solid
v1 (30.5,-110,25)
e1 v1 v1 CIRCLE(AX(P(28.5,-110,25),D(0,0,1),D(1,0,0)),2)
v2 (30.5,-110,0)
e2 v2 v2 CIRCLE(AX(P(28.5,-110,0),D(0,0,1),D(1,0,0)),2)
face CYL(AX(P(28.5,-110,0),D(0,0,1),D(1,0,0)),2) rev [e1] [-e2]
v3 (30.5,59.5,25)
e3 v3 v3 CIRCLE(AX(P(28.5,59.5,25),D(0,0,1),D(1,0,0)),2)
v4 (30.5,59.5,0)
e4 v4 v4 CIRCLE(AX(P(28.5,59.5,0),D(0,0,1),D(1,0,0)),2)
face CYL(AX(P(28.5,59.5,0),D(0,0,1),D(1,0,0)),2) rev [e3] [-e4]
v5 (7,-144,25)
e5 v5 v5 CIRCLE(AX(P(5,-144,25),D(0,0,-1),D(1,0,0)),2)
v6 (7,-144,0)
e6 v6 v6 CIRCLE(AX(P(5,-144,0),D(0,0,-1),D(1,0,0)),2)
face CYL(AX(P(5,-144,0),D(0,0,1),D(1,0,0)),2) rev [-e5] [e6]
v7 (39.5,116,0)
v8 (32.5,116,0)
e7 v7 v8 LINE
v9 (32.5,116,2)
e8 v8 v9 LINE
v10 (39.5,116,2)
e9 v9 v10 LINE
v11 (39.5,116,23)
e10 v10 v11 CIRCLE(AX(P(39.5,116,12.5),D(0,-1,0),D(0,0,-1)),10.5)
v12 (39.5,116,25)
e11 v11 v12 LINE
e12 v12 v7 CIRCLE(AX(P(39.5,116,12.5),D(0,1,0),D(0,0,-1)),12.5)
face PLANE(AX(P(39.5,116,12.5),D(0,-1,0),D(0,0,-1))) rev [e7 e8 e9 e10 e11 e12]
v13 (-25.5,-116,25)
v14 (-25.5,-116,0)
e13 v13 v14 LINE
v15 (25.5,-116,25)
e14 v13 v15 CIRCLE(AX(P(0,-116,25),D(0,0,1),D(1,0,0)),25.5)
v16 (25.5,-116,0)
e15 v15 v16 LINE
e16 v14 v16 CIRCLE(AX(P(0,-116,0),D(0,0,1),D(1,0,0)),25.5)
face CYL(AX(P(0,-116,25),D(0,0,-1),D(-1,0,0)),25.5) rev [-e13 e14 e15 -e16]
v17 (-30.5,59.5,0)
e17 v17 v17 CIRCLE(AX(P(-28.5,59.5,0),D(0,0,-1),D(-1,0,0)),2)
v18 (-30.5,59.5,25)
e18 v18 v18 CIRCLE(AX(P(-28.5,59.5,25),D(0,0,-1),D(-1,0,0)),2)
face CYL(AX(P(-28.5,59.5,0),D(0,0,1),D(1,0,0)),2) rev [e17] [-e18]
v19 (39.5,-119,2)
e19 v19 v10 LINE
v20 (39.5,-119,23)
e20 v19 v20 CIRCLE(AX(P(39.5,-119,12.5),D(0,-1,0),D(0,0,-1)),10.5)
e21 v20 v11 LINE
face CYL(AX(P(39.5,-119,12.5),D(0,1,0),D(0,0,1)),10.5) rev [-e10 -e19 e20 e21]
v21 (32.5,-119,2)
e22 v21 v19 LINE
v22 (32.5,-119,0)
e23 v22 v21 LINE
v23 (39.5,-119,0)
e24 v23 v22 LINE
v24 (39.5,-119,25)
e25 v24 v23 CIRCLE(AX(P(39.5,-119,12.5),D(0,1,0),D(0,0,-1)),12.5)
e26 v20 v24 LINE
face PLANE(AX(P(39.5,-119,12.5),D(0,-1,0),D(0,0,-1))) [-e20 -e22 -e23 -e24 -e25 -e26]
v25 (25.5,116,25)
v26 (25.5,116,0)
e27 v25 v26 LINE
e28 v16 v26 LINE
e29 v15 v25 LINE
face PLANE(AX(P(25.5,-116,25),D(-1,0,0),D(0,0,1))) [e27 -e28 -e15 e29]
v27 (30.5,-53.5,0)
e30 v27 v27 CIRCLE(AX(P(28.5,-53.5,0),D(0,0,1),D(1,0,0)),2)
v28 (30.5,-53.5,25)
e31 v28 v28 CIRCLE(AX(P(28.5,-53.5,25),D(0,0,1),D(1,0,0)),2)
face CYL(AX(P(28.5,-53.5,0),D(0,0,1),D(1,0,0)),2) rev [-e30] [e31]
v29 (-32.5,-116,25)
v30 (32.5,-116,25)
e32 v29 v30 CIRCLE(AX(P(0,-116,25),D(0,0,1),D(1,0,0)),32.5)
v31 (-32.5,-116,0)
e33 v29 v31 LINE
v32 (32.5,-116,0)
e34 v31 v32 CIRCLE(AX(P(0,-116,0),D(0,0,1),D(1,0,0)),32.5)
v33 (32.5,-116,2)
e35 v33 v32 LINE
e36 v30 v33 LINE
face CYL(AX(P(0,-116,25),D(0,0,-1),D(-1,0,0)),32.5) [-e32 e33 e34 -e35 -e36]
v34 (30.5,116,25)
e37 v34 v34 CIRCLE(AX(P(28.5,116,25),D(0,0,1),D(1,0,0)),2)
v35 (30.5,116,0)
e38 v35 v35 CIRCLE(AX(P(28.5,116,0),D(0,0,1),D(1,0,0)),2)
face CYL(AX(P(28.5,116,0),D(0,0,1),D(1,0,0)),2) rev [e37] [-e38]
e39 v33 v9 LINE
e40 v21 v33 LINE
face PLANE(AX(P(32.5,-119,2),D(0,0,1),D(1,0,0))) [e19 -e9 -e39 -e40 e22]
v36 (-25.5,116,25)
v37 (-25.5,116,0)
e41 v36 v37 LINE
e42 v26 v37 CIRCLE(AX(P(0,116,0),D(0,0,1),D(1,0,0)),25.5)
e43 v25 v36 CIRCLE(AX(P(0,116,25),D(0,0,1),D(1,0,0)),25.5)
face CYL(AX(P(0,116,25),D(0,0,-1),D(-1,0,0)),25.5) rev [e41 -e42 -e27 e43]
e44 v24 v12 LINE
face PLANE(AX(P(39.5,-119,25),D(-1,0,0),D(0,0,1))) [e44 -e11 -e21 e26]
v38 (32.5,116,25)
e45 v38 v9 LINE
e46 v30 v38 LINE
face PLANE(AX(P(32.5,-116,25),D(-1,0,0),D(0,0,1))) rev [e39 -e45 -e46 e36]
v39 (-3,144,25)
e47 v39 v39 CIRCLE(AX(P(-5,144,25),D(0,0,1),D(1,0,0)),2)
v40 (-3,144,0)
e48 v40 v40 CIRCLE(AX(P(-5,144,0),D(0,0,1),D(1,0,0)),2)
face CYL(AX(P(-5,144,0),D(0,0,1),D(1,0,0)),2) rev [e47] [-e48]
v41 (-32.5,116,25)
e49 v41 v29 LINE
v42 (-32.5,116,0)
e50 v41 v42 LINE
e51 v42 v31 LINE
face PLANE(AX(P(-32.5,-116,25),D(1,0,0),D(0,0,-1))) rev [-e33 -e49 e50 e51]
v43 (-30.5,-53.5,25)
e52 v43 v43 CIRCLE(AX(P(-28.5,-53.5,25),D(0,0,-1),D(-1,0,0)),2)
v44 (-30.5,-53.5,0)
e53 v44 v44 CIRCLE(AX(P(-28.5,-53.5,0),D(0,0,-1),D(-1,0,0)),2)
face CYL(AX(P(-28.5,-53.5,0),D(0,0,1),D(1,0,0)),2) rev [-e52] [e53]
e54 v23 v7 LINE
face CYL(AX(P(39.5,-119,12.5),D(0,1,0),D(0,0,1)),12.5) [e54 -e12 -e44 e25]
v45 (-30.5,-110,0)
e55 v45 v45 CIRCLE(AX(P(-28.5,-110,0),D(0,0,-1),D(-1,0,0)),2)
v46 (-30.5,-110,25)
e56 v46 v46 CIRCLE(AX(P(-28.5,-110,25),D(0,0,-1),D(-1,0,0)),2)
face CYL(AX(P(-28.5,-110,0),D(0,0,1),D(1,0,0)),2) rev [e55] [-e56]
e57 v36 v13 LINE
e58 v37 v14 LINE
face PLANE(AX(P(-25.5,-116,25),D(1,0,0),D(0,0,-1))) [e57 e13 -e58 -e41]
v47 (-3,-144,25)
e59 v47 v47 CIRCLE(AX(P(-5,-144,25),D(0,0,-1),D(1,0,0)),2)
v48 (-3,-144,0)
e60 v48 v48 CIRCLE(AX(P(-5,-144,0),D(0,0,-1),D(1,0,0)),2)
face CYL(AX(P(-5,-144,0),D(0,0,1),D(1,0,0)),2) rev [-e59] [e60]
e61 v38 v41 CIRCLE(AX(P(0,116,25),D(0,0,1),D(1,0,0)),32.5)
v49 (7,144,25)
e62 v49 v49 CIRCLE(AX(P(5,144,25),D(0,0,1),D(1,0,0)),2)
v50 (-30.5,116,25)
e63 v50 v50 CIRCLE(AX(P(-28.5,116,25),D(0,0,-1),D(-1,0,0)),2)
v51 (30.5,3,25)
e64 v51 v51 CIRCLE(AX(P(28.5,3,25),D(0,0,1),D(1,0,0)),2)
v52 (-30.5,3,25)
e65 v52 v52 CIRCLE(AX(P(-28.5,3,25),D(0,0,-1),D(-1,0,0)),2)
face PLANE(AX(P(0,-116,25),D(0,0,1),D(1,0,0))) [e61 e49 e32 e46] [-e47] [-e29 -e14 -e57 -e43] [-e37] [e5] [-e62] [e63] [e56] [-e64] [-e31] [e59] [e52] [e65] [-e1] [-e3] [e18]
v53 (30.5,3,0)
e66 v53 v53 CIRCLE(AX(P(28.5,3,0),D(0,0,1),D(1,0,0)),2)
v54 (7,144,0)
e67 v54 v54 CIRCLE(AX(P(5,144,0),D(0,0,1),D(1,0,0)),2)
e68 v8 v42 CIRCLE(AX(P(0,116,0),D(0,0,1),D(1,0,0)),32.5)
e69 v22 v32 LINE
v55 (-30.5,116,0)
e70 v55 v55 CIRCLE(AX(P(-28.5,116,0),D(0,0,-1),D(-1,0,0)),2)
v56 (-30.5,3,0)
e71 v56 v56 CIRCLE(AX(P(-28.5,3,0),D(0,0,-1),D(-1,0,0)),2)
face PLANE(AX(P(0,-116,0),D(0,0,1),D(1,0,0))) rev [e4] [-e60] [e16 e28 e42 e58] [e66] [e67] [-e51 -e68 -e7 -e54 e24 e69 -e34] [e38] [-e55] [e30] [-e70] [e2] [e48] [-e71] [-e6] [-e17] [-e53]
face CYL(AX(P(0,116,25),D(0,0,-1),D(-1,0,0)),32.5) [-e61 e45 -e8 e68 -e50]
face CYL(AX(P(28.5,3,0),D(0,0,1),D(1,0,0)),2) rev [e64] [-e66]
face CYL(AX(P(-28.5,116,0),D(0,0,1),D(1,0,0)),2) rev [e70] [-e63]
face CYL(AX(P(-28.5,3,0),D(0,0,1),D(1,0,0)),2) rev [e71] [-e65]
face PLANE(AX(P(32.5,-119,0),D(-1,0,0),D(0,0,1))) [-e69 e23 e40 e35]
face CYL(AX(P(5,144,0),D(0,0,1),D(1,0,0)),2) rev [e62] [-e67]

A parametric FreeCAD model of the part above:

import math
import FreeCAD as App
import Part
import Sketcher
Q = App.Units.Quantity

doc = App.newDocument("Part")
params = doc.addObject("Spreadsheet::Sheet", "Params")
for row, (alias, value) in enumerate([
    ("sketch1_radius", "32.5 mm"),
    ("sketch1_radius2", "25.5 mm"),
    ("sketch1_height", "232 mm"),
    ("pad1_length", "25 mm"),
    ("sketch2_diameter", "4 mm"),
    ("sketch3_diameter", "4 mm"),
    ("linearpattern_pitch", "56.5 mm"),
    ("sketch4_diameter", "4 mm"),
    ("sketch5_diameter", "4 mm"),
    ("sketch6_diameter", "4 mm"),
    ("sketch7_diameter", "4 mm"),
    ("sketch8_radius", "10.5 mm"),
    ("sketch8_radius2", "12.5 mm"),
    ("sketch8_width", "7 mm"),
    ("pad2_length", "235 mm"),
], start=1):
    params.set(f"A{row}", alias)
    params.set(f"B{row}", "=" + value)
    params.setAlias(f"B{row}", alias)

body = doc.addObject("PartDesign::Body", "Body")

# Sketch on XY plane
sketch1 = body.newObject("Sketcher::SketchObject", "Sketch")
sketch1.AttachmentSupport = (doc.getObject("XY_Plane"), [""])
sketch1.MapMode = "FlatFace"
sketch1.addGeometry([
    Part.LineSegment(App.Vector(-32, 116, 0), App.Vector(-32, -116, 0)),  # 0
    Part.ArcOfCircle(Part.Circle(App.Vector(0, -116, 0), App.Vector(0, 0, 1), 32), math.radians(180), math.radians(360)),  # 1
    Part.LineSegment(App.Vector(32, -116, 0), App.Vector(32, 116, 0)),  # 2
    Part.ArcOfCircle(Part.Circle(App.Vector(0, 116, 0), App.Vector(0, 0, 1), 32), math.radians(0), math.radians(180)),  # 3
    Part.LineSegment(App.Vector(-26, -116, 0), App.Vector(-26, 116, 0)),  # 4
    Part.ArcOfCircle(Part.Circle(App.Vector(0, 116, 0), App.Vector(0, 0, 1), 26), math.radians(0), math.radians(180)),  # 5
    Part.LineSegment(App.Vector(26, 116, 0), App.Vector(26, -116, 0)),  # 6
    Part.ArcOfCircle(Part.Circle(App.Vector(0, -116, 0), App.Vector(0, 0, 1), 26), math.radians(180), math.radians(360)),  # 7
], False)
sketch1.addConstraint([
    Sketcher.Constraint("Tangent", 0, 2, 1, 1),
    Sketcher.Constraint("Tangent", 1, 2, 2, 1),
    Sketcher.Constraint("Tangent", 2, 2, 3, 1),
    Sketcher.Constraint("Tangent", 3, 2, 0, 1),
    Sketcher.Constraint("Tangent", 4, 2, 5, 2),
    Sketcher.Constraint("Tangent", 5, 1, 6, 1),
    Sketcher.Constraint("Tangent", 6, 2, 7, 2),
    Sketcher.Constraint("Tangent", 7, 1, 4, 1),
    Sketcher.Constraint("Vertical", 0),
    Sketcher.Constraint("Vertical", 2),
    Sketcher.Constraint("Vertical", 4),
    Sketcher.Constraint("Vertical", 6),
    Sketcher.Constraint("Coincident", 5, 3, 3, 3),
    Sketcher.Constraint("Symmetric", 1, 3, 3, 3, -1, 1),
    Sketcher.Constraint("Horizontal", 7, 3, 0, 2),
    Sketcher.Constraint("Radius", 1, Q("32.5 mm")),
    Sketcher.Constraint("Radius", 5, Q("25.5 mm")),
    Sketcher.Constraint("DistanceY", 0, 2, 0, 1, Q("232 mm")),
])
sketch1.setExpression("Constraints[15]", "Params.sketch1_radius")
sketch1.setExpression("Constraints[16]", "Params.sketch1_radius2")
sketch1.setExpression("Constraints[17]", "Params.sketch1_height")
pad1 = body.newObject("PartDesign::Pad", "Pad")
pad1.Profile = sketch1
pad1.setExpression("Length", "Params.pad1_length")

# Sketch on XY plane
sketch2 = body.newObject("Sketcher::SketchObject", "Sketch001")
sketch2.AttachmentSupport = (doc.getObject("XY_Plane"), [""])
sketch2.MapMode = "FlatFace"
sketch2.AttachmentOffset = App.Placement(App.Vector(0, 0, 25), App.Rotation())
sketch2.addGeometry([
    Part.Circle(App.Vector(-5, 144, 0), App.Vector(0, 0, 1), 2),
    Part.Circle(App.Vector(5, 144, 0), App.Vector(0, 0, 1), 2),
], False)
sketch2.addConstraint([
    Sketcher.Constraint("Equal", 0, 1),
    Sketcher.Constraint("Symmetric", 0, 3, 1, 3, -2),
    Sketcher.Constraint("Diameter", 0, Q("4 mm")),
    Sketcher.Constraint("DistanceX", 0, 3, -1, 1, Q("5 mm")),
    Sketcher.Constraint("DistanceY", -1, 1, 0, 3, Q("144 mm")),
])
sketch2.setExpression("Constraints[2]", "Params.sketch2_diameter")
pocket1 = body.newObject("PartDesign::Pocket", "Pocket")
pocket1.Profile = sketch2
pocket1.Type = "ThroughAll"
doc.recompute()

mirrored = body.newObject("PartDesign::Mirrored", "Mirrored")
mirrored.Originals = [pocket1]
mirrored.MirrorPlane = (doc.getObject("XZ_Plane"), [""])
body.Tip = mirrored

# Sketch on XY plane
sketch3 = body.newObject("Sketcher::SketchObject", "Sketch002")
sketch3.AttachmentSupport = (doc.getObject("XY_Plane"), [""])
sketch3.MapMode = "FlatFace"
sketch3.AttachmentOffset = App.Placement(App.Vector(0, 0, 25), App.Rotation())
sketch3.addGeometry(Part.Circle(App.Vector(28.5, 116, 0), App.Vector(0, 0, 1), 2), False)
sketch3.addConstraint([
    Sketcher.Constraint("Diameter", 0, Q("4 mm")),
    Sketcher.Constraint("DistanceY", -1, 1, 0, 3, Q("116 mm")),
    Sketcher.Constraint("DistanceX", -1, 1, 0, 3, Q("28.5 mm")),
])
sketch3.setExpression("Constraints[0]", "Params.sketch3_diameter")
pocket2 = body.newObject("PartDesign::Pocket", "Pocket001")
pocket2.Profile = sketch3
pocket2.Type = "ThroughAll"
doc.recompute()

linearpattern = body.newObject("PartDesign::LinearPattern", "LinearPattern")
linearpattern.Originals = [pocket2]
linearpattern.Direction = (doc.getObject("Y_Axis"), [""])
linearpattern.Mode = "offset"
linearpattern.setExpression("Offset", "Params.linearpattern_pitch")
linearpattern.Occurrences = 5
linearpattern.Reversed = True
body.Tip = linearpattern
doc.recompute()

mirrored2 = body.newObject("PartDesign::Mirrored", "Mirrored001")
mirrored2.Originals = [pocket2]
mirrored2.MirrorPlane = (doc.getObject("YZ_Plane"), [""])
body.Tip = mirrored2

# Sketch on XY plane
sketch4 = body.newObject("Sketcher::SketchObject", "Sketch003")
sketch4.AttachmentSupport = (doc.getObject("XY_Plane"), [""])
sketch4.MapMode = "FlatFace"
sketch4.AttachmentOffset = App.Placement(App.Vector(0, 0, 25), App.Rotation())
sketch4.addGeometry(Part.Circle(App.Vector(-28.5, 59.5, 0), App.Vector(0, 0, 1), 2), False)
sketch4.addConstraint([
    Sketcher.Constraint("Diameter", 0, Q("4 mm")),
    Sketcher.Constraint("DistanceX", 0, 3, -1, 1, Q("28.5 mm")),
    Sketcher.Constraint("DistanceY", -1, 1, 0, 3, Q("59.5 mm")),
])
sketch4.setExpression("Constraints[0]", "Params.sketch4_diameter")
pocket3 = body.newObject("PartDesign::Pocket", "Pocket002")
pocket3.Profile = sketch4
pocket3.Type = "ThroughAll"

# Sketch on XY plane
sketch5 = body.newObject("Sketcher::SketchObject", "Sketch004")
sketch5.AttachmentSupport = (doc.getObject("XY_Plane"), [""])
sketch5.MapMode = "FlatFace"
sketch5.AttachmentOffset = App.Placement(App.Vector(0, 0, 25), App.Rotation())
sketch5.addGeometry(Part.Circle(App.Vector(-28.5, 3, 0), App.Vector(0, 0, 1), 2), False)
sketch5.addConstraint([
    Sketcher.Constraint("Diameter", 0, Q("4 mm")),
    Sketcher.Constraint("DistanceY", -1, 1, 0, 3, Q("3 mm")),
    Sketcher.Constraint("DistanceX", 0, 3, -1, 1, Q("28.5 mm")),
])
sketch5.setExpression("Constraints[0]", "Params.sketch5_diameter")
pocket4 = body.newObject("PartDesign::Pocket", "Pocket003")
pocket4.Profile = sketch5
pocket4.Type = "ThroughAll"

# Sketch on XY plane
sketch6 = body.newObject("Sketcher::SketchObject", "Sketch005")
sketch6.AttachmentSupport = (doc.getObject("XY_Plane"), [""])
sketch6.MapMode = "FlatFace"
sketch6.AttachmentOffset = App.Placement(App.Vector(0, 0, 25), App.Rotation())
sketch6.addGeometry(Part.Circle(App.Vector(-28.5, -53.5, 0), App.Vector(0, 0, 1), 2), False)
sketch6.addConstraint([
    Sketcher.Constraint("Diameter", 0, Q("4 mm")),
    Sketcher.Constraint("DistanceX", 0, 3, -1, 1, Q("28.5 mm")),
    Sketcher.Constraint("DistanceY", 0, 3, -1, 1, Q("53.5 mm")),
])
sketch6.setExpression("Constraints[0]", "Params.sketch6_diameter")
pocket5 = body.newObject("PartDesign::Pocket", "Pocket004")
pocket5.Profile = sketch6
pocket5.Type = "ThroughAll"

# Sketch on XY plane
sketch7 = body.newObject("Sketcher::SketchObject", "Sketch006")
sketch7.AttachmentSupport = (doc.getObject("XY_Plane"), [""])
sketch7.MapMode = "FlatFace"
sketch7.AttachmentOffset = App.Placement(App.Vector(0, 0, 25), App.Rotation())
sketch7.addGeometry(Part.Circle(App.Vector(-28.5, -110, 0), App.Vector(0, 0, 1), 2), False)
sketch7.addConstraint([
    Sketcher.Constraint("Diameter", 0, Q("4 mm")),
    Sketcher.Constraint("DistanceY", 0, 3, -1, 1, Q("110 mm")),
    Sketcher.Constraint("DistanceX", 0, 3, -1, 1, Q("28.5 mm")),
])
sketch7.setExpression("Constraints[0]", "Params.sketch7_diameter")
pocket6 = body.newObject("PartDesign::Pocket", "Pocket005")
pocket6.Profile = sketch7
pocket6.Type = "ThroughAll"

# Sketch on XZ plane
sketch8 = body.newObject("Sketcher::SketchObject", "Sketch007")
sketch8.AttachmentSupport = (doc.getObject("XZ_Plane"), [""])
sketch8.MapMode = "FlatFace"
sketch8.AttachmentOffset = App.Placement(App.Vector(0, 0, -116), App.Rotation())
sketch8.addGeometry([
    Part.LineSegment(App.Vector(39.5, 0, 0), App.Vector(32.5, 0, 0)),  # 0
    Part.LineSegment(App.Vector(32.5, 0, 0), App.Vector(32.5, 2, 0)),  # 1
    Part.LineSegment(App.Vector(32.5, 2, 0), App.Vector(39.5, 2, 0)),  # 2
    Part.ArcOfCircle(Part.Circle(App.Vector(39.5, 12.5, 0), App.Vector(0, 0, 1), 10.5), math.radians(-90), math.radians(90)),  # 3
    Part.LineSegment(App.Vector(39.5, 23, 0), App.Vector(39.5, 25, 0)),  # 4
    Part.ArcOfCircle(Part.Circle(App.Vector(39.5, 12.5, 0), App.Vector(0, 0, 1), 12.5), math.radians(-90), math.radians(90)),  # 5
], False)
sketch8.addConstraint([
    Sketcher.Constraint("Coincident", 0, 2, 1, 1),
    Sketcher.Constraint("Coincident", 1, 2, 2, 1),
    Sketcher.Constraint("Tangent", 2, 2, 3, 1),
    Sketcher.Constraint("Coincident", 3, 2, 4, 1),
    Sketcher.Constraint("Coincident", 4, 2, 5, 2),
    Sketcher.Constraint("Tangent", 5, 1, 0, 1),
    Sketcher.Constraint("Horizontal", 0),
    Sketcher.Constraint("Vertical", 1),
    Sketcher.Constraint("Horizontal", 2),
    Sketcher.Constraint("Vertical", 4),
    Sketcher.Constraint("Coincident", 5, 3, 3, 3),
    Sketcher.Constraint("PointOnObject", 0, 2, -1),
    Sketcher.Constraint("Vertical", 2, 2, 3, 2),
    Sketcher.Constraint("Radius", 3, Q("10.5 mm")),
    Sketcher.Constraint("Radius", 5, Q("12.5 mm")),
    Sketcher.Constraint("DistanceX", 0, 2, 0, 1, Q("7 mm")),
    Sketcher.Constraint("DistanceX", -1, 1, 3, 3, Q("39.5 mm")),
])
sketch8.setExpression("Constraints[13]", "Params.sketch8_radius")
sketch8.setExpression("Constraints[14]", "Params.sketch8_radius2")
sketch8.setExpression("Constraints[15]", "Params.sketch8_width")
pad2 = body.newObject("PartDesign::Pad", "Pad001")
pad2.Profile = sketch8
pad2.setExpression("Length", "Params.pad2_length")

doc.recompute()
